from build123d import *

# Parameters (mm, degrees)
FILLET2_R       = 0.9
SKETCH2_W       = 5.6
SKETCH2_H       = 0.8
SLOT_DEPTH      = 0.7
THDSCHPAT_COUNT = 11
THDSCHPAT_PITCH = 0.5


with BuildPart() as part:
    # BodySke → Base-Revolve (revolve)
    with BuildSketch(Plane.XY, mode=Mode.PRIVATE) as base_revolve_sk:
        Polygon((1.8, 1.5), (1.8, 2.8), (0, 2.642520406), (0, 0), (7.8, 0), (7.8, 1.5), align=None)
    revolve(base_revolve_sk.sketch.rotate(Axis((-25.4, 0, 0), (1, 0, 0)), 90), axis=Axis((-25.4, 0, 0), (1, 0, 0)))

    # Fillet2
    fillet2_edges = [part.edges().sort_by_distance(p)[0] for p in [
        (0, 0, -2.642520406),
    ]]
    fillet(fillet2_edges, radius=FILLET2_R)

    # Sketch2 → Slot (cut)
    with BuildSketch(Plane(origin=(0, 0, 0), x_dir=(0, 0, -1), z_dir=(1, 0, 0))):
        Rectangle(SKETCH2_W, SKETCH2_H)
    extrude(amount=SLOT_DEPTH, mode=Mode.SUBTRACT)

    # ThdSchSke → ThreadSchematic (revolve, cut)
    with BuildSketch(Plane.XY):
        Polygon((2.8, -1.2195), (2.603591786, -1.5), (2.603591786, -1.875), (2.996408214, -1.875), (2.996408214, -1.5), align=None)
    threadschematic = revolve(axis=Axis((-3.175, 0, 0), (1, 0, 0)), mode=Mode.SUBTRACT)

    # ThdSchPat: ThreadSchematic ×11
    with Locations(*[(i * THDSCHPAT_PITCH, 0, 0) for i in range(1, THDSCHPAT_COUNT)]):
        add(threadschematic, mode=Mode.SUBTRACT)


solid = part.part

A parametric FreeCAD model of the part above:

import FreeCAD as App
import Part
import Sketcher
Q = App.Units.Quantity


def edges_at(feature, points):
    """Names of the edges that pass closest to the given points."""
    edges = feature.Shape.Edges
    near = lambda p: min(range(len(edges)), key=lambda i: edges[i].distToShape(Part.Vertex(*p))[0])
    return sorted({f"Edge{near(p) + 1}" for p in points})

doc = App.newDocument("Part")
body = doc.addObject("PartDesign::Body", "Body")

# Sketch on XY plane
sketch1 = body.newObject("Sketcher::SketchObject", "Sketch")
sketch1.AttachmentSupport = (doc.getObject("XY_Plane"), [""])
sketch1.MapMode = "FlatFace"
sketch1.addGeometry([
    Part.LineSegment(App.Vector(1.8, 1.5, 0), App.Vector(1.8, 2.8, 0)),  # 0
    Part.LineSegment(App.Vector(1.8, 2.8, 0), App.Vector(0, 2.6, 0)),  # 1
    Part.LineSegment(App.Vector(0, 2.6, 0), App.Vector(0, 0, 0)),  # 2
    Part.LineSegment(App.Vector(0, 0, 0), App.Vector(7.8, 0, 0)),  # 3
    Part.LineSegment(App.Vector(7.8, 0, 0), App.Vector(7.8, 1.5, 0)),  # 4
    Part.LineSegment(App.Vector(7.8, 1.5, 0), App.Vector(1.8, 1.5, 0)),  # 5
], False)
sketch1.addConstraint([
    Sketcher.Constraint("Coincident", 0, 2, 1, 1),
    Sketcher.Constraint("Coincident", 1, 2, 2, 1),
    Sketcher.Constraint("Coincident", 2, 2, 3, 1),
    Sketcher.Constraint("Coincident", 3, 2, 4, 1),
    Sketcher.Constraint("Coincident", 4, 2, 5, 1),
    Sketcher.Constraint("Coincident", 5, 2, 0, 1),
    Sketcher.Constraint("Vertical", 0),
    Sketcher.Constraint("Vertical", 2),
    Sketcher.Constraint("Horizontal", 3),
    Sketcher.Constraint("Vertical", 4),
    Sketcher.Constraint("Horizontal", 5),
    Sketcher.Constraint("Coincident", 2, 2, -1, 1),
    Sketcher.Constraint("DistanceX", 5, 2, 5, 1, Q("6 mm")),
    Sketcher.Constraint("Angle", 1, Q("-175 deg")),
    Sketcher.Constraint("DistanceX", 3, 1, 3, 2, Q("7.8 mm")),
    Sketcher.Constraint("DistanceY", 0, 1, 0, 2, Q("1.3 mm")),
    Sketcher.Constraint("DistanceY", 4, 1, 4, 2, Q("1.5 mm")),
])
revolution = body.newObject("PartDesign::Revolution", "Revolution")
revolution.Profile = sketch1
revolution.ReferenceAxis = (sketch1, ["H_Axis"])
revolution.Angle = 360
doc.recompute()

fillet = body.newObject("PartDesign::Fillet", "Fillet")
fillet.Base = (revolution, edges_at(revolution, [(0, 0, -2.643)]))
fillet.Radius = 0.9

# Sketch on YZ plane
sketch2 = body.newObject("Sketcher::SketchObject", "Sketch001")
sketch2.AttachmentSupport = (doc.getObject("YZ_Plane"), [""])
sketch2.MapMode = "FlatFace"
sketch2.addGeometry([
    Part.LineSegment(App.Vector(0.4, 2.8, 0), App.Vector(-0.4, 2.8, 0)),
    Part.LineSegment(App.Vector(-0.4, 2.8, 0), App.Vector(-0.4, -2.8, 0)),
    Part.LineSegment(App.Vector(-0.4, -2.8, 0), App.Vector(0.4, -2.8, 0)),
    Part.LineSegment(App.Vector(0.4, -2.8, 0), App.Vector(0.4, 2.8, 0)),
], False)
sketch2.addConstraint([
    Sketcher.Constraint("Coincident", 0, 2, 1, 1),
    Sketcher.Constraint("Coincident", 1, 2, 2, 1),
    Sketcher.Constraint("Coincident", 2, 2, 3, 1),
    Sketcher.Constraint("Coincident", 3, 2, 0, 1),
    Sketcher.Constraint("Horizontal", 0),
    Sketcher.Constraint("Vertical", 1),
    Sketcher.Constraint("Horizontal", 2),
    Sketcher.Constraint("Vertical", 3),
    Sketcher.Constraint("Symmetric", 0, 2, 2, 2, -1, 1),
    Sketcher.Constraint("DistanceX", 0, 2, 0, 1, Q("0.8 mm")),
    Sketcher.Constraint("DistanceY", 1, 2, 1, 1, Q("5.6 mm")),
])
pocket1 = body.newObject("PartDesign::Pocket", "Pocket")
pocket1.Profile = sketch2
pocket1.Length = 0.7
pocket1.Reversed = True

# Sketch on XY plane
sketch3 = body.newObject("Sketcher::SketchObject", "Sketch002")
sketch3.AttachmentSupport = (doc.getObject("XY_Plane"), [""])
sketch3.MapMode = "FlatFace"
sketch3.addGeometry([
    Part.LineSegment(App.Vector(2.8, -1.22, 0), App.Vector(2.6, -1.5, 0)),  # 0
    Part.LineSegment(App.Vector(2.6, -1.5, 0), App.Vector(2.6, -1.88, 0)),  # 1
    Part.LineSegment(App.Vector(2.6, -1.88, 0), App.Vector(3, -1.88, 0)),  # 2
    Part.LineSegment(App.Vector(3, -1.88, 0), App.Vector(3, -1.5, 0)),  # 3
    Part.LineSegment(App.Vector(3, -1.5, 0), App.Vector(2.8, -1.22, 0)),  # 4
], False)
sketch3.addConstraint([
    Sketcher.Constraint("Coincident", 0, 2, 1, 1),
    Sketcher.Constraint("Coincident", 1, 2, 2, 1),
    Sketcher.Constraint("Coincident", 2, 2, 3, 1),
    Sketcher.Constraint("Coincident", 3, 2, 4, 1),
    Sketcher.Constraint("Coincident", 4, 2, 0, 1),
    Sketcher.Constraint("Vertical", 1),
    Sketcher.Constraint("Horizontal", 2),
    Sketcher.Constraint("Vertical", 3),
    Sketcher.Constraint("Horizontal", 0, 2, 3, 2),
    Sketcher.Constraint("Equal", 0, 4),
    Sketcher.Constraint("Angle", 0, Q("-125 deg")),
    Sketcher.Constraint("DistanceY", 0, 2, -1, 1, Q("1.5 mm")),
    Sketcher.Constraint("DistanceX", -1, 1, 4, 2, Q("2.8 mm")),
    Sketcher.Constraint("DistanceY", 1, 2, 1, 1, Q("0.375 mm")),
    Sketcher.Constraint("DistanceY", 4, 2, -1, 1, Q("1.2195 mm")),
])
groove = body.newObject("PartDesign::Groove", "Groove")
groove.Profile = sketch3
groove.ReferenceAxis = (sketch3, ["H_Axis"])
groove.Angle = 360
doc.recompute()

linearpattern = body.newObject("PartDesign::LinearPattern", "LinearPattern")
linearpattern.Originals = [groove]
linearpattern.Direction = (doc.getObject("X_Axis"), [""])
linearpattern.Mode = "offset"
linearpattern.Offset = 0.5
linearpattern.Occurrences = 11
body.Tip = linearpattern

doc.recompute()
